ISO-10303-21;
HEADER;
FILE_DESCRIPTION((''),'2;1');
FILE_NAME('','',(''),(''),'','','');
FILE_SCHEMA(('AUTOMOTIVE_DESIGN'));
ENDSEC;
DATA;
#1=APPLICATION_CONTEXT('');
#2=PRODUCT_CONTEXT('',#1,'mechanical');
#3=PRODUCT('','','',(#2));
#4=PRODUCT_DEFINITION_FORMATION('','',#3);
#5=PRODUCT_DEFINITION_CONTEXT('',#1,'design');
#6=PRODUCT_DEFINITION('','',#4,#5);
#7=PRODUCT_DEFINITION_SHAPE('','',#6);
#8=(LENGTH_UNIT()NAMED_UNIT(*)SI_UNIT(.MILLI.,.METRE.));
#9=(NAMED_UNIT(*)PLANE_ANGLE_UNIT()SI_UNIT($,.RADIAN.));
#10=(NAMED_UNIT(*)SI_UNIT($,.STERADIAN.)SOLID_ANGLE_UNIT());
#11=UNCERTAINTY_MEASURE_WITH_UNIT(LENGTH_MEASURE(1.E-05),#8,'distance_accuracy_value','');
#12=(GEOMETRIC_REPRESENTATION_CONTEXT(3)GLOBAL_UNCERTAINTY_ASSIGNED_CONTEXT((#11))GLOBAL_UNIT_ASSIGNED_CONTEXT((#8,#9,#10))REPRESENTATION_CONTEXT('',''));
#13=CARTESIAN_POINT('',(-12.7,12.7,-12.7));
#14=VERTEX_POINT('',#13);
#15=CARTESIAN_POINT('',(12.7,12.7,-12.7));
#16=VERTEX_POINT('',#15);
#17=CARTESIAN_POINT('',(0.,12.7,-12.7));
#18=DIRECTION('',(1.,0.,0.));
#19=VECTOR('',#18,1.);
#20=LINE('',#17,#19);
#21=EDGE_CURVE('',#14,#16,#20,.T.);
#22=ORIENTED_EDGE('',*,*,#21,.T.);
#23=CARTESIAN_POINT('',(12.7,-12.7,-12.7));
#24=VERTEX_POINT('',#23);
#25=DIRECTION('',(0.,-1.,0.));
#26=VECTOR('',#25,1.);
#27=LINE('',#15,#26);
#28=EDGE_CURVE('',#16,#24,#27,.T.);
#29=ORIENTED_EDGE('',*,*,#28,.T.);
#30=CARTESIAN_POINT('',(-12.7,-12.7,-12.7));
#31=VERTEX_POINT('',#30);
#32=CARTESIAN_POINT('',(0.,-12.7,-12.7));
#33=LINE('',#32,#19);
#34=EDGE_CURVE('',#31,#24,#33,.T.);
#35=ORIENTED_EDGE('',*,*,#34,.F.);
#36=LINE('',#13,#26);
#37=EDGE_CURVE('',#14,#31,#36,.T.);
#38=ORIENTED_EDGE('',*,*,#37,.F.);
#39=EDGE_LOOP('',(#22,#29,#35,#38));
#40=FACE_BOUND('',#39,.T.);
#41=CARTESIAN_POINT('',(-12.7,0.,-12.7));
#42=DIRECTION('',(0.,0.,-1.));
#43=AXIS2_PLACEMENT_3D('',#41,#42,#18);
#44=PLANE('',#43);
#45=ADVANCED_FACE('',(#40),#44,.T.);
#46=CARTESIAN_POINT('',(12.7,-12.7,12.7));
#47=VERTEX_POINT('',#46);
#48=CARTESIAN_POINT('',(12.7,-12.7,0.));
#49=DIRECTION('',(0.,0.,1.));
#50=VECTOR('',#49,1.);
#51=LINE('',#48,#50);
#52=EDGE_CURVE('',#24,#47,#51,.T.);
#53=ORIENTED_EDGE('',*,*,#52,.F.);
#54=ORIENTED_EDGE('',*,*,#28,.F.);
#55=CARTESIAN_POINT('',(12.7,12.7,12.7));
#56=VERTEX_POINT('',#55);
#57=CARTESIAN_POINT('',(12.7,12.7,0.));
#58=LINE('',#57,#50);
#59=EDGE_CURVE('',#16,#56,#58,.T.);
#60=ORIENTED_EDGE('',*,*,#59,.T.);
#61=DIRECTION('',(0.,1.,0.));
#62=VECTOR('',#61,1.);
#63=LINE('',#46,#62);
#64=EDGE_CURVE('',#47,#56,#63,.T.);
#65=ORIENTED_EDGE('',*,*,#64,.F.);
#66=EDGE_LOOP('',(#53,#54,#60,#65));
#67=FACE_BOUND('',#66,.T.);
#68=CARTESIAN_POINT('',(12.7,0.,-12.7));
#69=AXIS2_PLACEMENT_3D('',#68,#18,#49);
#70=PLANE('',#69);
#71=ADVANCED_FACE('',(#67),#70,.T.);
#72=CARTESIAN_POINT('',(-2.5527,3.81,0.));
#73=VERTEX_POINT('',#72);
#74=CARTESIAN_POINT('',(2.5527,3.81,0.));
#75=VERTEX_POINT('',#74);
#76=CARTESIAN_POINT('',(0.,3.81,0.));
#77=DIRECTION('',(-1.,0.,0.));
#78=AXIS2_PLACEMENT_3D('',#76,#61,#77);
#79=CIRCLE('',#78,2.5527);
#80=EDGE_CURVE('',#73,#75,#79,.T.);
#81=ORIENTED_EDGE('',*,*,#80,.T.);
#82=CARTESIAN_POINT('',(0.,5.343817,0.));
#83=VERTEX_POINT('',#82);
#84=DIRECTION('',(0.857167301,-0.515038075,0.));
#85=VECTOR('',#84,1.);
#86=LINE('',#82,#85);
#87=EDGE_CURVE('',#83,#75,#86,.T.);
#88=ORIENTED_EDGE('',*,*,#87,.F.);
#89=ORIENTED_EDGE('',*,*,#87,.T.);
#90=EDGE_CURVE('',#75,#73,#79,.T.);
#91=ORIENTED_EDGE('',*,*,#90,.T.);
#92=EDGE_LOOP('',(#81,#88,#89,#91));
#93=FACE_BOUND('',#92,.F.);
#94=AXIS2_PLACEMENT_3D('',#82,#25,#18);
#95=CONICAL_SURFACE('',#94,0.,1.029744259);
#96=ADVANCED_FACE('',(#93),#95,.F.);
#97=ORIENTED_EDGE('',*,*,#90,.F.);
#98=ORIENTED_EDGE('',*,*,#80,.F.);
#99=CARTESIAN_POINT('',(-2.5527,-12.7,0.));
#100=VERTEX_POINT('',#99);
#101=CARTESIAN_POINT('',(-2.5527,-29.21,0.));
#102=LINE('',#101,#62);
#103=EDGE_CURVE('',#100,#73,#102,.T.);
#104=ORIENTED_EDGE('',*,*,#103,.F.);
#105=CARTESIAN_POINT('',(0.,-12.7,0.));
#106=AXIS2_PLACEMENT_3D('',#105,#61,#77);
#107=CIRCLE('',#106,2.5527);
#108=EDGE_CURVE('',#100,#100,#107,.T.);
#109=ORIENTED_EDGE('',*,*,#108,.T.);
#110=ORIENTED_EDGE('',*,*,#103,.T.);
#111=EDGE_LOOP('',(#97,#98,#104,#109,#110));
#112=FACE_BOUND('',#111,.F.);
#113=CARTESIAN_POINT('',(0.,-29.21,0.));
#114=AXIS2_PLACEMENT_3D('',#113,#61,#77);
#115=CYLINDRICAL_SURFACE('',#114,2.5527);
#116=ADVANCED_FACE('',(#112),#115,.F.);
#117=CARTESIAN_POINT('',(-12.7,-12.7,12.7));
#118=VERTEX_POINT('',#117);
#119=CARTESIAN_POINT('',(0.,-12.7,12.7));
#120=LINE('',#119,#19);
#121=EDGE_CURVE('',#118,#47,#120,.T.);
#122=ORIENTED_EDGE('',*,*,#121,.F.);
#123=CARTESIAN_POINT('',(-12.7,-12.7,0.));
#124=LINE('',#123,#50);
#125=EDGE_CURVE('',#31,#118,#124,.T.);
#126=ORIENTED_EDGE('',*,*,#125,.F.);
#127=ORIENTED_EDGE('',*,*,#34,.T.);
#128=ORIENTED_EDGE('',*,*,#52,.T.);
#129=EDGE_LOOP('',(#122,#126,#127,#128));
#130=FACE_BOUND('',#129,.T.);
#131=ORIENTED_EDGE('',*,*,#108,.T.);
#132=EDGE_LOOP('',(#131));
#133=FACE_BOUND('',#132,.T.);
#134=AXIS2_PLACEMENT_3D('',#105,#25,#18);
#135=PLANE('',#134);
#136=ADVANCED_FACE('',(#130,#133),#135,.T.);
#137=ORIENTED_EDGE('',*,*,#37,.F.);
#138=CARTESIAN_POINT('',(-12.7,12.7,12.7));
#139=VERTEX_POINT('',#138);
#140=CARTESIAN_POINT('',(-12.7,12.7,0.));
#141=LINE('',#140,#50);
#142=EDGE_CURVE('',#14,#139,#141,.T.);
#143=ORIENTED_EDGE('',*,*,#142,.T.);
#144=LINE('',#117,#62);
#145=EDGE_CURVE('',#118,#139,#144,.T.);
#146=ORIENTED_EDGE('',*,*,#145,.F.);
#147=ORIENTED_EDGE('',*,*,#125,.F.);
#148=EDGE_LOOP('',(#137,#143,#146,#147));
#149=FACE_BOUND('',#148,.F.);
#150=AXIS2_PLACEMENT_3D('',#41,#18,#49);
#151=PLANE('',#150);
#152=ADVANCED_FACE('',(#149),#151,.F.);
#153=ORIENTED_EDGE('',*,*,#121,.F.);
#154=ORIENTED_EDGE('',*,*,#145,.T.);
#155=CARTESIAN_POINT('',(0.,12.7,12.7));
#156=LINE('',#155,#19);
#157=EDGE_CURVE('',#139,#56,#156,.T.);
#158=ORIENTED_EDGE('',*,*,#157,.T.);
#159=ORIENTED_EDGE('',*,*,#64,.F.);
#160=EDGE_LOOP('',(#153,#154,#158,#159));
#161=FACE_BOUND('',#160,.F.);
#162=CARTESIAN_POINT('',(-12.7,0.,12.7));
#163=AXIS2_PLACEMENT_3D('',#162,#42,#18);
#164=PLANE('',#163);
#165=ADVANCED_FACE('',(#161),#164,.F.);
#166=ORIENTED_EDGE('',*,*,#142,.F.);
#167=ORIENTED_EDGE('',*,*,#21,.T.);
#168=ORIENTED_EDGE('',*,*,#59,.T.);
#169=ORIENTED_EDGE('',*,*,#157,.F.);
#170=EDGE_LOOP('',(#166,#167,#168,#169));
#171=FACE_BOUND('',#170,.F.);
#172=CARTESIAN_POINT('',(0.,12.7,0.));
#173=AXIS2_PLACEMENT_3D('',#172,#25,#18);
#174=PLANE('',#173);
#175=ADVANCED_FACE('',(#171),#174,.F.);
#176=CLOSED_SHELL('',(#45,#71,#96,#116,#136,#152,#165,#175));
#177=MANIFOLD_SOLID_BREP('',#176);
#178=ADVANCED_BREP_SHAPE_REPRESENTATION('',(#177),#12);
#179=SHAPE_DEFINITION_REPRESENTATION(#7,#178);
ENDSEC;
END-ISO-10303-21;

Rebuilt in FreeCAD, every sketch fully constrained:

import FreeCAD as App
import Part
import Sketcher
from FreeCAD import Vector
Q = App.Units.Quantity

doc = App.newDocument("Part")
body = doc.addObject("PartDesign::Body", "Body")

# Sketch on XZ plane
sketch1 = body.newObject("Sketcher::SketchObject", "Sketch")
sketch1.AttachmentSupport = (doc.getObject("XZ_Plane"), [""])
sketch1.MapMode = "FlatFace"
sketch1.addGeometry(Part.LineSegment(Vector(-12.7, 12.7, 0), Vector(-12.7, -12.7, 0)), False)
sketch1.addGeometry(Part.LineSegment(Vector(-12.7, -12.7, 0), Vector(12.7, -12.7, 0)), False)
sketch1.addGeometry(Part.LineSegment(Vector(12.7, -12.7, 0), Vector(12.7, 12.7, 0)), False)
sketch1.addGeometry(Part.LineSegment(Vector(12.7, 12.7, 0), Vector(-12.7, 12.7, 0)), False)
sketch1.addConstraint(Sketcher.Constraint("Coincident", 0, 2, 1, 1))
sketch1.addConstraint(Sketcher.Constraint("Coincident", 1, 2, 2, 1))
sketch1.addConstraint(Sketcher.Constraint("Coincident", 2, 2, 3, 1))
sketch1.addConstraint(Sketcher.Constraint("Coincident", 3, 2, 0, 1))
sketch1.addConstraint(Sketcher.Constraint("Vertical", 0))
sketch1.addConstraint(Sketcher.Constraint("Horizontal", 1))
sketch1.addConstraint(Sketcher.Constraint("Vertical", 2))
sketch1.addConstraint(Sketcher.Constraint("Horizontal", 3))
sketch1.addConstraint(Sketcher.Constraint("Symmetric", 0, 2, 2, 2, -1, 1))
sketch1.addConstraint(Sketcher.Constraint("Equal", 3, 0))
sketch1.addConstraint(Sketcher.Constraint("DistanceX", 1, 1, 1, 2, Q("1 in")))
pad1 = body.newObject("PartDesign::Pad", "Pad")
pad1.Profile = sketch1
pad1.Length = Q("1 in")
pad1.Midplane = True

# Sketch on XZ plane
sketch2 = body.newObject("Sketcher::SketchObject", "Sketch001")
sketch2.AttachmentSupport = (doc.getObject("XZ_Plane"), [""])
sketch2.MapMode = "FlatFace"
sketch2.AttachmentOffset = App.Placement(Vector(0, 0, 0.5 * 25.4), App.Rotation())
sketch2.addGeometry(Part.Circle(Vector(0, 0, 0), Vector(0, 0, 1), 2.5527), False)
sketch2.addConstraint(Sketcher.Constraint("Coincident", 0, 3, -1, 1))
sketch2.addConstraint(Sketcher.Constraint("Diameter", 0, Q("0.201 in")))
doc.recompute()
hole = body.newObject("PartDesign::Hole", "Hole")
hole.Profile = sketch2
hole.ThreadType = "None"
hole.Diameter = Q("0.201 in")
hole.DepthType = "Dimension"
hole.Depth = Q("0.65 in")
hole.DrillPoint = "Angled"
hole.DrillPointAngle = 118

doc.recompute()
